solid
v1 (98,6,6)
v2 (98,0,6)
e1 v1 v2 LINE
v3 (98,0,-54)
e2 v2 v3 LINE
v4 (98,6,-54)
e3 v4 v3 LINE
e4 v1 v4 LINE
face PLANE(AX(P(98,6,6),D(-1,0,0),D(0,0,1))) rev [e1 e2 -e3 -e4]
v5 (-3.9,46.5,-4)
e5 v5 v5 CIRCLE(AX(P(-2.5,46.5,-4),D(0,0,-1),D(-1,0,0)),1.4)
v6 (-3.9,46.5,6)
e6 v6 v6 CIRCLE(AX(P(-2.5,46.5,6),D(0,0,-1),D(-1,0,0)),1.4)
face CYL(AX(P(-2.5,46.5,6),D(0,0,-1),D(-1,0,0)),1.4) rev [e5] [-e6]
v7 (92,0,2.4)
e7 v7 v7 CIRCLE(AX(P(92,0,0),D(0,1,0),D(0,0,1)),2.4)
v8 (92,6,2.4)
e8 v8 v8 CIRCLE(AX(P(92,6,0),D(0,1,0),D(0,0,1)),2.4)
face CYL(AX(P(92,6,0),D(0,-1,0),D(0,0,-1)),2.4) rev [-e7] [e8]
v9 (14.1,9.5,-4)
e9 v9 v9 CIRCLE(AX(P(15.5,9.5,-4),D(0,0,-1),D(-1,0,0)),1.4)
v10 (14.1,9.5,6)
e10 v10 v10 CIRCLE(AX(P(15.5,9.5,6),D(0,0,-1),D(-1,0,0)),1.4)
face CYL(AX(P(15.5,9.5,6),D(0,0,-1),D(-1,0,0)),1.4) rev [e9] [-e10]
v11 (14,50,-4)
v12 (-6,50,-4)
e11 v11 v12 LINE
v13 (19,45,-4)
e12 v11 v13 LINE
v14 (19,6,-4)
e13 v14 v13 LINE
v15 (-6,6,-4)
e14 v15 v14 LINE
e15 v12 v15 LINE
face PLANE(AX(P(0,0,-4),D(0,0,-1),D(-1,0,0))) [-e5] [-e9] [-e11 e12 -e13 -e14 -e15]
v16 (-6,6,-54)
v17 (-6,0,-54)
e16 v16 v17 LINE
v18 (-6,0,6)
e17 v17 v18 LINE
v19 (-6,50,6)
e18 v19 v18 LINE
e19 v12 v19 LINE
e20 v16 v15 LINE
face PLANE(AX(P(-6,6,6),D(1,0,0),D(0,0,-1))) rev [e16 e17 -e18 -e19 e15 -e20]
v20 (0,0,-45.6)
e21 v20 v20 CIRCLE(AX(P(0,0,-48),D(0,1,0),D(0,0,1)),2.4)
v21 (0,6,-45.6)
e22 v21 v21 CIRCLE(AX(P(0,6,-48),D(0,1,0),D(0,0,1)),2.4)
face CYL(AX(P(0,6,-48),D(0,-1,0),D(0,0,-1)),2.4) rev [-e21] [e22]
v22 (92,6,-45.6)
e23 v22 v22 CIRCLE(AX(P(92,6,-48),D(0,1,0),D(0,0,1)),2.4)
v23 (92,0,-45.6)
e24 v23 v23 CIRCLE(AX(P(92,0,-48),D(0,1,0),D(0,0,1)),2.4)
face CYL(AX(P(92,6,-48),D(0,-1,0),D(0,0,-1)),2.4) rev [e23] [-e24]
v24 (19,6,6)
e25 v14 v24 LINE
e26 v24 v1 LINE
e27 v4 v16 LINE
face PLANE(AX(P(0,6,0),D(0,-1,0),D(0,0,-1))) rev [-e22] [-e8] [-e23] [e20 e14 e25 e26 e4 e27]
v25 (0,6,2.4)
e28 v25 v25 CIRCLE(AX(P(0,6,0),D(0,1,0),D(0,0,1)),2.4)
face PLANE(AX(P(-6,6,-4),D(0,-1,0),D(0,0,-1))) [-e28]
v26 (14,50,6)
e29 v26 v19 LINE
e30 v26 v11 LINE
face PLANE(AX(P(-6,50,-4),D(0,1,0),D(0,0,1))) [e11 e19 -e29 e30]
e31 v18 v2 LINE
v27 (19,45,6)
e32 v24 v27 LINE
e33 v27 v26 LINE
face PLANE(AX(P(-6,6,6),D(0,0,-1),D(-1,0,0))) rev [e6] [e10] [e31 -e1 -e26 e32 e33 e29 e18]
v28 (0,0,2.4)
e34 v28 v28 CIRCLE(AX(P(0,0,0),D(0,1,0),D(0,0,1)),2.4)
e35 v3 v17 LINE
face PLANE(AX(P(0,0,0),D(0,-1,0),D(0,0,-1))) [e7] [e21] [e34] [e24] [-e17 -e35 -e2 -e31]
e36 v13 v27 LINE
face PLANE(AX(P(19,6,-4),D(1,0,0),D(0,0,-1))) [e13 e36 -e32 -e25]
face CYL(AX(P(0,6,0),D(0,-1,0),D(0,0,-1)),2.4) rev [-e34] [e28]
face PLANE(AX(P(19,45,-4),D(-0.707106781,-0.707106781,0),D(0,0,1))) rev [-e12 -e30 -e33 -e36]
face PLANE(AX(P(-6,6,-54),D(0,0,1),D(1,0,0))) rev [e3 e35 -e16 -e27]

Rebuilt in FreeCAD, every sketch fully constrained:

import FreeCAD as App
import Part
import Sketcher
from FreeCAD import Vector


def edges_at(feature, points):
    """Names of the edges that pass closest to the given points."""
    edges = feature.Shape.Edges
    near = lambda p: min(range(len(edges)), key=lambda i: edges[i].distToShape(Part.Vertex(*p))[0])
    return sorted({f"Edge{near(p) + 1}" for p in points})

doc = App.newDocument("Part")
body = doc.addObject("PartDesign::Body", "Body")

# Sketch on XZ plane
sketch1 = body.newObject("Sketcher::SketchObject", "Sketch")
sketch1.AttachmentSupport = (doc.getObject("XZ_Plane"), [""])
sketch1.MapMode = "FlatFace"
sketch1.addGeometry(Part.LineSegment(Vector(-6, -54, 0), Vector(-6, 6, 0)), False)
sketch1.addGeometry(Part.LineSegment(Vector(-6, 6, 0), Vector(98, 6, 0)), False)
sketch1.addGeometry(Part.LineSegment(Vector(98, 6, 0), Vector(98, -54, 0)), False)
sketch1.addGeometry(Part.LineSegment(Vector(98, -54, 0), Vector(-6, -54, 0)), False)
sketch1.addGeometry(Part.Circle(Vector(0, 0, 0), Vector(0, 0, 1), 2.4), False)
sketch1.addGeometry(Part.Circle(Vector(92, 0, 0), Vector(0, 0, 1), 2.4), False)
sketch1.addGeometry(Part.Circle(Vector(0, -48, 0), Vector(0, 0, 1), 2.4), False)
sketch1.addGeometry(Part.Circle(Vector(92, -48, 0), Vector(0, 0, 1), 2.4), False)
sketch1.addConstraint(Sketcher.Constraint("Coincident", 0, 2, 1, 1))
sketch1.addConstraint(Sketcher.Constraint("Coincident", 1, 2, 2, 1))
sketch1.addConstraint(Sketcher.Constraint("Coincident", 2, 2, 3, 1))
sketch1.addConstraint(Sketcher.Constraint("Coincident", 3, 2, 0, 1))
sketch1.addConstraint(Sketcher.Constraint("Vertical", 0))
sketch1.addConstraint(Sketcher.Constraint("Horizontal", 1))
sketch1.addConstraint(Sketcher.Constraint("Vertical", 2))
sketch1.addConstraint(Sketcher.Constraint("Horizontal", 3))
sketch1.addConstraint(Sketcher.Constraint("Coincident", 4, 3, -1, 1))
sketch1.addConstraint(Sketcher.Constraint("Equal", 4, 5))
sketch1.addConstraint(Sketcher.Constraint("Equal", 5, 6))
sketch1.addConstraint(Sketcher.Constraint("Equal", 6, 7))
sketch1.addConstraint(Sketcher.Constraint("PointOnObject", 5, 3, -1))
sketch1.addConstraint(Sketcher.Constraint("PointOnObject", 6, 3, -2))
sketch1.addConstraint(Sketcher.Constraint("Horizontal", 6, 3, 7, 3))
sketch1.addConstraint(Sketcher.Constraint("Vertical", 5, 3, 7, 3))
sketch1.addConstraint(Sketcher.Constraint("Diameter", 4, 4.8))
sketch1.addConstraint(Sketcher.Constraint("DistanceX", 1, 1, 1, 2, 104.0))
sketch1.addConstraint(Sketcher.Constraint("DistanceY", 0, 1, 0, 2, 60.0))
sketch1.addConstraint(Sketcher.Constraint("DistanceX", -1, 1, 5, 3, 92.0))
sketch1.addConstraint(Sketcher.Constraint("DistanceY", 6, 3, -1, 1, 48.0))
sketch1.addConstraint(Sketcher.Constraint("DistanceX", 0, 2, -1, 1, 6.0))
sketch1.addConstraint(Sketcher.Constraint("DistanceY", -1, 1, 0, 2, 6.0))
pad1 = body.newObject("PartDesign::Pad", "Pad")
pad1.Profile = sketch1
pad1.Length = 6
pad1.Reversed = True

# Sketch on XY plane
sketch2 = body.newObject("Sketcher::SketchObject", "Sketch001")
sketch2.AttachmentSupport = (doc.getObject("XY_Plane"), [""])
sketch2.MapMode = "FlatFace"
sketch2.AttachmentOffset = App.Placement(Vector(0, 0, 6), App.Rotation())
sketch2.addGeometry(Part.LineSegment(Vector(-6, 50, 0), Vector(-6, 6, 0)), False)
sketch2.addGeometry(Part.LineSegment(Vector(-6, 6, 0), Vector(19, 6, 0)), False)
sketch2.addGeometry(Part.LineSegment(Vector(19, 6, 0), Vector(19, 50, 0)), False)
sketch2.addGeometry(Part.LineSegment(Vector(19, 50, 0), Vector(-6, 50, 0)), False)
sketch2.addConstraint(Sketcher.Constraint("Coincident", 0, 2, 1, 1))
sketch2.addConstraint(Sketcher.Constraint("Coincident", 1, 2, 2, 1))
sketch2.addConstraint(Sketcher.Constraint("Coincident", 2, 2, 3, 1))
sketch2.addConstraint(Sketcher.Constraint("Coincident", 3, 2, 0, 1))
sketch2.addConstraint(Sketcher.Constraint("Vertical", 0))
sketch2.addConstraint(Sketcher.Constraint("Horizontal", 1))
sketch2.addConstraint(Sketcher.Constraint("Vertical", 2))
sketch2.addConstraint(Sketcher.Constraint("Horizontal", 3))
sketch2.addConstraint(Sketcher.Constraint("DistanceX", 1, 1, 1, 2, 25.0))
sketch2.addConstraint(Sketcher.Constraint("DistanceY", 0, 2, 0, 1, 44.0))
sketch2.addConstraint(Sketcher.Constraint("DistanceX", 0, 2, -1, 1, 6.0))
sketch2.addConstraint(Sketcher.Constraint("DistanceY", -1, 1, 0, 2, 6.0))
pad2 = body.newObject("PartDesign::Pad", "Pad001")
pad2.Profile = sketch2
pad2.Length = 10
pad2.Reversed = True

# Sketch on XY plane
sketch3 = body.newObject("Sketcher::SketchObject", "Sketch002")
sketch3.AttachmentSupport = (doc.getObject("XY_Plane"), [""])
sketch3.MapMode = "FlatFace"
sketch3.AttachmentOffset = App.Placement(Vector(0, 0, -4), App.Rotation())
sketch3.addGeometry(Part.Circle(Vector(15.5, 9.5, 0), Vector(0, 0, 1), 1.4), False)
sketch3.addGeometry(Part.Circle(Vector(-2.5, 46.5, 0), Vector(0, 0, 1), 1.4), False)
sketch3.addConstraint(Sketcher.Constraint("Equal", 0, 1))
sketch3.addConstraint(Sketcher.Constraint("Diameter", 0, 2.8))
sketch3.addConstraint(Sketcher.Constraint("DistanceX", 1, 3, 0, 3, 18.0))
sketch3.addConstraint(Sketcher.Constraint("DistanceY", 0, 3, 1, 3, 37.0))
sketch3.addConstraint(Sketcher.Constraint("DistanceX", -1, 1, 0, 3, 15.5))
sketch3.addConstraint(Sketcher.Constraint("DistanceY", -1, 1, 0, 3, 9.5))
pocket1 = body.newObject("PartDesign::Pocket", "Pocket")
pocket1.Profile = sketch3
pocket1.Type = "ThroughAll"
pocket1.Reversed = True
doc.recompute()

chamfer = body.newObject("PartDesign::Chamfer", "Chamfer")
chamfer.Base = (pocket1, edges_at(pocket1, [(19, 50, 1)]))
chamfer.Size = 5

doc.recompute()
